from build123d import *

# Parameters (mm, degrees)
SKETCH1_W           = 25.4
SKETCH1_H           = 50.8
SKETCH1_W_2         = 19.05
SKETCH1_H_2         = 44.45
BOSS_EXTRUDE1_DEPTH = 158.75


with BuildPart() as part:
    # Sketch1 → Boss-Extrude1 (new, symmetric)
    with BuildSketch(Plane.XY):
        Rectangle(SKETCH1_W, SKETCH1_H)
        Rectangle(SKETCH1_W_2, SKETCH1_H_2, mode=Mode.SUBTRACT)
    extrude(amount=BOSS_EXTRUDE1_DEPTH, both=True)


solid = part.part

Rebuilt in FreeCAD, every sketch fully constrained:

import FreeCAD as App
import Part
import Sketcher

V = App.Vector
Q = App.Units.Quantity


def add_polygon(sketch, points):
    """Adds a closed chain of lines whose ends are joined by coincident constraints."""
    first, n = sketch.GeometryCount, len(points)
    for a, b in zip(points, points[1:] + points[:1]):
        sketch.addGeometry(Part.LineSegment(App.Vector(*a, 0), App.Vector(*b, 0)), False)
    for i in range(n):
        sketch.addConstraint(Sketcher.Constraint("Coincident", first + i, 2, first + (i + 1) % n, 1))

doc = App.newDocument("Part")
body = doc.addObject("PartDesign::Body", "Body")

sketch1 = doc.addObject("Sketcher::SketchObject", "Sketch")
body.addObject(sketch1)
sketch1.AttachmentSupport = (doc.XY_Plane, [""])
sketch1.MapMode = "FlatFace"
add_polygon(sketch1, [(-12.7, 25.4), (-12.7, -25.4), (12.7, -25.4), (12.7, 25.4)])
add_polygon(sketch1, [(9.525, -22.225), (-9.525, -22.225), (-9.525, 22.225), (9.525, 22.225)])
sketch1.addConstraint(Sketcher.Constraint("Vertical", 0))
sketch1.addConstraint(Sketcher.Constraint("Horizontal", 1))
sketch1.addConstraint(Sketcher.Constraint("Vertical", 2))
sketch1.addConstraint(Sketcher.Constraint("Horizontal", 3))
sketch1.addConstraint(Sketcher.Constraint("Horizontal", 4))
sketch1.addConstraint(Sketcher.Constraint("Vertical", 5))
sketch1.addConstraint(Sketcher.Constraint("Horizontal", 6))
sketch1.addConstraint(Sketcher.Constraint("Vertical", 7))
sketch1.addConstraint(Sketcher.Constraint("Symmetric", 0, 2, 2, 2, -1, 1))
sketch1.addConstraint(Sketcher.Constraint("Symmetric", 4, 2, 6, 2, -1, 1))
sketch1.addConstraint(Sketcher.Constraint("DistanceX", 1, 1, 1, 2, Q("1 in")))
sketch1.addConstraint(Sketcher.Constraint("DistanceY", 0, 2, 0, 1, Q("2 in")))
sketch1.addConstraint(Sketcher.Constraint("DistanceX", 4, 2, 4, 1, Q("0.75 in")))
sketch1.addConstraint(Sketcher.Constraint("DistanceY", 5, 1, 5, 2, Q("1.75 in")))
pad1 = doc.addObject("PartDesign::Pad", "Pad")
body.addObject(pad1)
pad1.Profile = sketch1
pad1.Length = Q("12.5 in")
pad1.Midplane = True

doc.recompute()
